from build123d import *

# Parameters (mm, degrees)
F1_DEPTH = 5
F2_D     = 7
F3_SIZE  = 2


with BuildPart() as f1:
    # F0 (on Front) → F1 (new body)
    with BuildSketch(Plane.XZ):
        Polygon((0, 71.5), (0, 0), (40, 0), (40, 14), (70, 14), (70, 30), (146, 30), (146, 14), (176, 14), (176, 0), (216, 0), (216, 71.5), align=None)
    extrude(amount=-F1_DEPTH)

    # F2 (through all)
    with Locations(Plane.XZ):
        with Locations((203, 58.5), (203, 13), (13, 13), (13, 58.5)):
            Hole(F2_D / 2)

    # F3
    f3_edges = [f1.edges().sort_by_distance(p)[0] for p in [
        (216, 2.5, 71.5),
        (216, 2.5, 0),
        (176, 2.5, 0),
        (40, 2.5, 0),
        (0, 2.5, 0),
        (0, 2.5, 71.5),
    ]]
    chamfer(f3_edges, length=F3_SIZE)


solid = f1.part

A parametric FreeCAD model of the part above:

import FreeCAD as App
import Part
import Sketcher
from FreeCAD import Vector
Q = App.Units.Quantity


def edges_at(feature, points):
    """Names of the edges that pass closest to the given points."""
    edges = feature.Shape.Edges
    near = lambda p: min(range(len(edges)), key=lambda i: edges[i].distToShape(Part.Vertex(*p))[0])
    return sorted({f"Edge{near(p) + 1}" for p in points})

doc = App.newDocument("Part")
body = doc.addObject("PartDesign::Body", "Body")

# Sketch on XZ plane
sketch1 = body.newObject("Sketcher::SketchObject", "Sketch")
sketch1.AttachmentSupport = (doc.getObject("XZ_Plane"), [""])
sketch1.MapMode = "FlatFace"
sketch1.addGeometry(Part.LineSegment(Vector(0, 71.5, 0), Vector(0, 0, 0)), False)
sketch1.addGeometry(Part.LineSegment(Vector(0, 0, 0), Vector(40, 0, 0)), False)
sketch1.addGeometry(Part.LineSegment(Vector(40, 0, 0), Vector(40, 14, 0)), False)
sketch1.addGeometry(Part.LineSegment(Vector(40, 14, 0), Vector(70, 14, 0)), False)
sketch1.addGeometry(Part.LineSegment(Vector(70, 14, 0), Vector(70, 30, 0)), False)
sketch1.addGeometry(Part.LineSegment(Vector(70, 30, 0), Vector(146, 30, 0)), False)
sketch1.addGeometry(Part.LineSegment(Vector(146, 30, 0), Vector(146, 14, 0)), False)
sketch1.addGeometry(Part.LineSegment(Vector(146, 14, 0), Vector(176, 14, 0)), False)
sketch1.addGeometry(Part.LineSegment(Vector(176, 14, 0), Vector(176, 0, 0)), False)
sketch1.addGeometry(Part.LineSegment(Vector(176, 0, 0), Vector(216, 0, 0)), False)
sketch1.addGeometry(Part.LineSegment(Vector(216, 0, 0), Vector(216, 71.5, 0)), False)
sketch1.addGeometry(Part.LineSegment(Vector(216, 71.5, 0), Vector(0, 71.5, 0)), False)
sketch1.addConstraint(Sketcher.Constraint("Coincident", 0, 2, 1, 1))
sketch1.addConstraint(Sketcher.Constraint("Coincident", 1, 2, 2, 1))
sketch1.addConstraint(Sketcher.Constraint("Coincident", 2, 2, 3, 1))
sketch1.addConstraint(Sketcher.Constraint("Coincident", 3, 2, 4, 1))
sketch1.addConstraint(Sketcher.Constraint("Coincident", 4, 2, 5, 1))
sketch1.addConstraint(Sketcher.Constraint("Coincident", 5, 2, 6, 1))
sketch1.addConstraint(Sketcher.Constraint("Coincident", 6, 2, 7, 1))
sketch1.addConstraint(Sketcher.Constraint("Coincident", 7, 2, 8, 1))
sketch1.addConstraint(Sketcher.Constraint("Coincident", 8, 2, 9, 1))
sketch1.addConstraint(Sketcher.Constraint("Coincident", 9, 2, 10, 1))
sketch1.addConstraint(Sketcher.Constraint("Coincident", 10, 2, 11, 1))
sketch1.addConstraint(Sketcher.Constraint("Coincident", 11, 2, 0, 1))
sketch1.addConstraint(Sketcher.Constraint("Vertical", 0))
sketch1.addConstraint(Sketcher.Constraint("Horizontal", 1))
sketch1.addConstraint(Sketcher.Constraint("Vertical", 2))
sketch1.addConstraint(Sketcher.Constraint("Horizontal", 3))
sketch1.addConstraint(Sketcher.Constraint("Vertical", 4))
sketch1.addConstraint(Sketcher.Constraint("Horizontal", 5))
sketch1.addConstraint(Sketcher.Constraint("Vertical", 6))
sketch1.addConstraint(Sketcher.Constraint("Horizontal", 7))
sketch1.addConstraint(Sketcher.Constraint("Vertical", 8))
sketch1.addConstraint(Sketcher.Constraint("Horizontal", 9))
sketch1.addConstraint(Sketcher.Constraint("Vertical", 10))
sketch1.addConstraint(Sketcher.Constraint("Horizontal", 11))
sketch1.addConstraint(Sketcher.Constraint("Coincident", 0, 2, -1, 1))
sketch1.addConstraint(Sketcher.Constraint("PointOnObject", 8, 2, -1))
sketch1.addConstraint(Sketcher.Constraint("Horizontal", 3, 2, 6, 2))
sketch1.addConstraint(Sketcher.Constraint("Equal", 3, 7))
sketch1.addConstraint(Sketcher.Constraint("Equal", 1, 9))
sketch1.addConstraint(Sketcher.Constraint("DistanceX", 1, 1, 1, 2, Q("40 mm")))
sketch1.addConstraint(Sketcher.Constraint("DistanceX", 3, 1, 3, 2, Q("30 mm")))
sketch1.addConstraint(Sketcher.Constraint("DistanceX", 5, 1, 5, 2, Q("76 mm")))
sketch1.addConstraint(Sketcher.Constraint("DistanceY", 2, 1, 2, 2, Q("14 mm")))
sketch1.addConstraint(Sketcher.Constraint("DistanceY", 4, 1, 4, 2, Q("16 mm")))
sketch1.addConstraint(Sketcher.Constraint("DistanceY", 0, 2, 0, 1, Q("71.5 mm")))
pad1 = body.newObject("PartDesign::Pad", "Pad")
pad1.Profile = sketch1
pad1.Length = 5
pad1.Reversed = True

# Sketch on XZ plane
sketch2 = body.newObject("Sketcher::SketchObject", "Sketch001")
sketch2.AttachmentSupport = (doc.getObject("XZ_Plane"), [""])
sketch2.MapMode = "FlatFace"
sketch2.addGeometry(Part.Circle(Vector(203, 58.5, 0), Vector(0, 0, 1), 3.5), False)
sketch2.addGeometry(Part.Circle(Vector(203, 13, 0), Vector(0, 0, 1), 3.5), False)
sketch2.addGeometry(Part.Circle(Vector(13, 13, 0), Vector(0, 0, 1), 3.5), False)
sketch2.addGeometry(Part.Circle(Vector(13, 58.5, 0), Vector(0, 0, 1), 3.5), False)
sketch2.addConstraint(Sketcher.Constraint("Equal", 0, 1))
sketch2.addConstraint(Sketcher.Constraint("Equal", 1, 2))
sketch2.addConstraint(Sketcher.Constraint("Equal", 2, 3))
sketch2.addConstraint(Sketcher.Constraint("Horizontal", 1, 3, 2, 3))
sketch2.addConstraint(Sketcher.Constraint("Horizontal", 0, 3, 3, 3))
sketch2.addConstraint(Sketcher.Constraint("Vertical", 0, 3, 1, 3))
sketch2.addConstraint(Sketcher.Constraint("Vertical", 2, 3, 3, 3))
sketch2.addConstraint(Sketcher.Constraint("Diameter", 0, Q("7 mm")))
sketch2.addConstraint(Sketcher.Constraint("DistanceX", -1, 1, 0, 3, Q("203 mm")))
sketch2.addConstraint(Sketcher.Constraint("DistanceY", -1, 1, 1, 3, Q("13 mm")))
sketch2.addConstraint(Sketcher.Constraint("DistanceX", -1, 1, 2, 3, Q("13 mm")))
sketch2.addConstraint(Sketcher.Constraint("DistanceY", -1, 1, 0, 3, Q("58.5 mm")))
doc.recompute()
hole = body.newObject("PartDesign::Hole", "Hole")
hole.Profile = sketch2
hole.ThreadType = "None"
hole.Diameter = 7
hole.DepthType = "ThroughAll"
doc.recompute()

chamfer = body.newObject("PartDesign::Chamfer", "Chamfer")
chamfer.Base = (hole, edges_at(hole, [
    (216, 2.5, 71.5),
    (216, 2.5, 0),
    (176, 2.5, 0),
    (40, 2.5, 0),
    (0, 2.5, 0),
    (0, 2.5, 71.5),
]))
chamfer.Size = 2

doc.recompute()
